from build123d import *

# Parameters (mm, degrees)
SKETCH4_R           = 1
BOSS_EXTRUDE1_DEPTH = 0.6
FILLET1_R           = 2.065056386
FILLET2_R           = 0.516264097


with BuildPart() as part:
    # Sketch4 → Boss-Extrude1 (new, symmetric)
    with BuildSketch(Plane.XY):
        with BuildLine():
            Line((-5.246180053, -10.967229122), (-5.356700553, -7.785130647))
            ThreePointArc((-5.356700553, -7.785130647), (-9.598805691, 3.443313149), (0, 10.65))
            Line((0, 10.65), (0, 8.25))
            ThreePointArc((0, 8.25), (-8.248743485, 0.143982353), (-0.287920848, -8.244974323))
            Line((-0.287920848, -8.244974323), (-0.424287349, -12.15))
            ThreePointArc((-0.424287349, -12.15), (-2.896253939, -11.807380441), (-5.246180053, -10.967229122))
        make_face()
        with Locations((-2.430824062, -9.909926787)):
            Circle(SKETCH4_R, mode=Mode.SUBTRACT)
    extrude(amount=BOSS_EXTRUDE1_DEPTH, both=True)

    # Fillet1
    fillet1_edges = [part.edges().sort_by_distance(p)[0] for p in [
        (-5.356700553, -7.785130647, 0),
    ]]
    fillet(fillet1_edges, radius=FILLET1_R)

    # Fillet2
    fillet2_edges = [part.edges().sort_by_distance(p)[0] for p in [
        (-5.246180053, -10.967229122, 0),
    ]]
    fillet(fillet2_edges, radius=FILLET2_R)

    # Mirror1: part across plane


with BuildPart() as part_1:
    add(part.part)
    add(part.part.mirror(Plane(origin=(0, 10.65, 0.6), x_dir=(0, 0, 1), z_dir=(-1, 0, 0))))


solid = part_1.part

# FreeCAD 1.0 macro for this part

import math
import FreeCAD as App
import Part
import Sketcher

V = App.Vector
Q = App.Units.Quantity


def edges_at(feature, points):
    """Names of the edges that pass closest to the given points."""
    edges = feature.Shape.Edges
    near = lambda p: min(range(len(edges)), key=lambda i: edges[i].distToShape(Part.Vertex(*p))[0])
    return sorted({f"Edge{near(p) + 1}" for p in points})

doc = App.newDocument("Part")
params = doc.addObject("Spreadsheet::Sheet", "Params")
for row, (alias, value) in enumerate([
    ("sketch1_diameter", "2 mm"),
    ("sketch1_radius", "8.25 mm"),
    ("sketch1_height", "2.4 mm"),
    ("pad1_length", "1.2 mm"),
    ("fillet_radius", "2.065056 mm"),
    ("fillet2_radius", "0.516264 mm"),
], start=1):
    params.set(f"A{row}", alias)
    params.set(f"B{row}", "=" + value)
    params.setAlias(f"B{row}", alias)

body = doc.addObject("PartDesign::Body", "Body")

sketch1 = body.newObject("Sketcher::SketchObject", "Sketch")
sketch1.AttachmentSupport = (doc.getObject("XY_Plane"), [""])
sketch1.MapMode = "FlatFace"
sketch1.addGeometry([
    Part.LineSegment(V(-5.4, -7.8, 0), V(-5.2, -11, 0)),
    Part.ArcOfCircle(Part.Circle(V(0, 0, 0), V(0, 0, 1), 12.2), math.radians(-116), math.radians(-92)),
    Part.LineSegment(V(-0.4, -12.2, 0), V(-0.3, -8.2, 0)),
    Part.ArcOfCircle(Part.Circle(V(0, 0, 0), V(0, 0, 1), 8.2), math.radians(90), math.radians(268)),
    Part.LineSegment(V(0, 8.2, 0), V(0, 10.7, 0)),
    Part.ArcOfCircle(Part.Circle(V(0, 0.7, 0), V(0, 0, 1), 10), math.radians(90), math.radians(238)),
    Part.Circle(V(-2.4, -9.9, 0), V(0, 0, 1), 1),
], False)
sketch1.addConstraint([
    Sketcher.Constraint("Coincident", 0, 2, 1, 1),
    Sketcher.Constraint("Coincident", 1, 2, 2, 1),
    Sketcher.Constraint("Coincident", 2, 2, 3, 2),
    Sketcher.Constraint("Coincident", 3, 1, 4, 1),
    Sketcher.Constraint("Coincident", 4, 2, 5, 1),
    Sketcher.Constraint("Coincident", 5, 2, 0, 1),
    Sketcher.Constraint("Vertical", 4),
    Sketcher.Constraint("Coincident", 1, 3, -1, 1),
    Sketcher.Constraint("Coincident", 3, 3, -1, 1),
    Sketcher.Constraint("PointOnObject", 5, 3, -2),
    Sketcher.Constraint("PointOnObject", 3, 1, -2),
    Sketcher.Constraint("Diameter", 6, Q("2 mm")),
    Sketcher.Constraint("Angle", 2, Q("88 deg")),
    Sketcher.Constraint("Radius", 3, Q("8.25 mm")),
    Sketcher.Constraint("DistanceY", 4, 1, 4, 2, Q("2.4 mm")),
    Sketcher.Constraint("DistanceY", 1, 2, -1, 1, Q("12.15 mm")),
    Sketcher.Constraint("Radius", 1, Q("12.157406 mm")),
    Sketcher.Constraint("Radius", 5, Q("9.995814 mm")),
    Sketcher.Constraint("DistanceX", 5, 2, -1, 1, Q("5.356701 mm")),
    Sketcher.Constraint("DistanceY", 0, 2, 5, 2, Q("3.182098 mm")),
    Sketcher.Constraint("DistanceX", 6, 3, -1, 1, Q("2.430824 mm")),
    Sketcher.Constraint("DistanceY", 6, 3, -1, 1, Q("9.909927 mm")),
])
sketch1.setExpression("Constraints[11]", "Params.sketch1_diameter")
sketch1.setExpression("Constraints[13]", "Params.sketch1_radius")
sketch1.setExpression("Constraints[14]", "Params.sketch1_height")
pad1 = body.newObject("PartDesign::Pad", "Pad")
pad1.Profile = sketch1
pad1.setExpression("Length", "Params.pad1_length")
pad1.Midplane = True
doc.recompute()

fillet = body.newObject("PartDesign::Fillet", "Fillet")
fillet.Base = (pad1, edges_at(pad1, [(-5.357, -7.785, 0)]))
fillet.setExpression("Radius", "Params.fillet_radius")
doc.recompute()

fillet2 = body.newObject("PartDesign::Fillet", "Fillet001")
fillet2.Base = (fillet, edges_at(fillet, [(-5.246, -10.967, 0)]))
fillet2.setExpression("Radius", "Params.fillet2_radius")
body2 = doc.addObject("PartDesign::Body", "Body001")
doc.recompute()

body2.BaseFeature = body
doc.recompute()

mirroring = doc.addObject("Part::Mirroring", "Mirroring")
mirroring.Source = body
mirroring.Base = V(0, 10.65, 0.6)
mirroring.Normal = V(-1, 0, 0)
body3 = doc.addObject("PartDesign::Body", "Body002")
body3.BaseFeature = mirroring
boolean = body2.newObject("PartDesign::Boolean", "Boolean")
boolean.Type = "Fuse"
boolean.addObjects([body3])
doc.recompute()
mirroring.Visibility = False

doc.recompute()
